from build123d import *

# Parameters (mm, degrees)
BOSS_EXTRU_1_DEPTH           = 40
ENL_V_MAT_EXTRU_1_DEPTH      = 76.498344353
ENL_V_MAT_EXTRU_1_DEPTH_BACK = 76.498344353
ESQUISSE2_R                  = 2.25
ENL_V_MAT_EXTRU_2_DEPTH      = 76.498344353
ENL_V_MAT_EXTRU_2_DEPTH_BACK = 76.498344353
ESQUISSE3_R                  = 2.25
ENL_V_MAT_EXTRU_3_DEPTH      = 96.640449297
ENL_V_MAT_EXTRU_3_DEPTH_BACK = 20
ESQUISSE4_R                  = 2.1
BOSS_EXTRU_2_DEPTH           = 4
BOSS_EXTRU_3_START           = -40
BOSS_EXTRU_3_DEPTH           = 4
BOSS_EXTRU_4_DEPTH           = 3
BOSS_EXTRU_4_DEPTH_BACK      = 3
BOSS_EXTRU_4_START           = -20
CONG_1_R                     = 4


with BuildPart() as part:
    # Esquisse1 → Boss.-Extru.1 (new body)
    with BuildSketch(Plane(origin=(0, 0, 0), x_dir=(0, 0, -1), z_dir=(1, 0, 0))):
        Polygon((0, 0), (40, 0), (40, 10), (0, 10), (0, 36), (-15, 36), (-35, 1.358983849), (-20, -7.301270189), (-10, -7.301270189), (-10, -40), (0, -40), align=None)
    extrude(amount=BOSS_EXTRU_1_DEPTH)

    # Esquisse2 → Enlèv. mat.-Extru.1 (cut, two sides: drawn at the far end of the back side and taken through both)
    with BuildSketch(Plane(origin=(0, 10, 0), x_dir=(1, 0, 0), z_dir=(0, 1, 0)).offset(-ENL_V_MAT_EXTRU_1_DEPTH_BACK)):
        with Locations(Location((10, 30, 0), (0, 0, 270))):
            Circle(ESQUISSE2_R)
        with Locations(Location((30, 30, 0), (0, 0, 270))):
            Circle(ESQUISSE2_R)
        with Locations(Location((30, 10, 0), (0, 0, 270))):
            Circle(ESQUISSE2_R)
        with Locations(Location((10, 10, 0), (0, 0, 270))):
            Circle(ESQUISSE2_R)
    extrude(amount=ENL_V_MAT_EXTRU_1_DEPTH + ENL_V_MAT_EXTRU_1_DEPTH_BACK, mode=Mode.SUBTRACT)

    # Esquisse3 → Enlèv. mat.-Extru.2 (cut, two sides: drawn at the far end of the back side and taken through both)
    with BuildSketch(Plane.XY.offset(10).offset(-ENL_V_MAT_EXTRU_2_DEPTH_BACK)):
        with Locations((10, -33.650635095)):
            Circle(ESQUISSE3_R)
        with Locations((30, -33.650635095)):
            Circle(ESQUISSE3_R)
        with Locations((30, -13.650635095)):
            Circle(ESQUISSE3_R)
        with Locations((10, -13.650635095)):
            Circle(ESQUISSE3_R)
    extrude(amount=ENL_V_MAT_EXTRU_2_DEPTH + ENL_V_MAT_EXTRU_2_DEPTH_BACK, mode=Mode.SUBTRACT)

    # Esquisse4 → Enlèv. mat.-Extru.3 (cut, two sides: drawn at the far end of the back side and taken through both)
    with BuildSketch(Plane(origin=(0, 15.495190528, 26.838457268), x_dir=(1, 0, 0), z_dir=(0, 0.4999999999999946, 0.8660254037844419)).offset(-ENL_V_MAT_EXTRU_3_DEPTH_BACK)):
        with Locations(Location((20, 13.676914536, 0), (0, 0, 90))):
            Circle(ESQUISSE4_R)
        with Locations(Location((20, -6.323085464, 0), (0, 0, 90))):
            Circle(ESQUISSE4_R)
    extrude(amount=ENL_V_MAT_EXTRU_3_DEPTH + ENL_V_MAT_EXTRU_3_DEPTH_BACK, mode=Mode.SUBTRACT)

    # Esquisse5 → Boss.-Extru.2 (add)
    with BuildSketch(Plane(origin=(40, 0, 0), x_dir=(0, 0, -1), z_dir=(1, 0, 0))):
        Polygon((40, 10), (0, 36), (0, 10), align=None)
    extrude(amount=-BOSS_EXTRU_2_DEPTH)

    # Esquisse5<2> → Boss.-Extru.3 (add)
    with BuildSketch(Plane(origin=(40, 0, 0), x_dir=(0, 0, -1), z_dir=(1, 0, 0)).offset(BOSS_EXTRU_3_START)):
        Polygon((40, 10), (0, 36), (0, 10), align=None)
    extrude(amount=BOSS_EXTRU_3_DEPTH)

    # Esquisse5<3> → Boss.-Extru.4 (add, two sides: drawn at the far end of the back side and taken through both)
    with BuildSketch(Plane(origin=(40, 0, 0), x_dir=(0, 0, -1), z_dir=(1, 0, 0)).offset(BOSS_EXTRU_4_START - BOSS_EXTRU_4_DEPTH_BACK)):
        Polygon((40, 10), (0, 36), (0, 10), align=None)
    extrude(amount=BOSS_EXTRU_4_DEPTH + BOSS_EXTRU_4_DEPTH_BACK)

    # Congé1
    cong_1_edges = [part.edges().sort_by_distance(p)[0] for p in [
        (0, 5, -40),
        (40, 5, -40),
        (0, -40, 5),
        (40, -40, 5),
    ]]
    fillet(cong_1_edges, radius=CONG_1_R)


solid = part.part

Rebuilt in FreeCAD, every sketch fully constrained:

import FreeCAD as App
import Part
import Sketcher
Q = App.Units.Quantity


def edges_at(feature, points):
    """Names of the edges that pass closest to the given points."""
    edges = feature.Shape.Edges
    near = lambda p: min(range(len(edges)), key=lambda i: edges[i].distToShape(Part.Vertex(*p))[0])
    return sorted({f"Edge{near(p) + 1}" for p in points})


def add_polygon(sketch, points):
    """Adds a closed chain of lines whose ends are joined by coincident constraints."""
    first, n = sketch.GeometryCount, len(points)
    for a, b in zip(points, points[1:] + points[:1]):
        sketch.addGeometry(Part.LineSegment(App.Vector(*a, 0), App.Vector(*b, 0)), False)
    for i in range(n):
        sketch.addConstraint(Sketcher.Constraint("Coincident", first + i, 2, first + (i + 1) % n, 1))

doc = App.newDocument("Part")
params = doc.addObject("Spreadsheet::Sheet", "Params")
for row, (alias, value) in enumerate([
    ("sketch1_width", "10 mm"),
    ("sketch1_width2", "26 mm"),
    ("sketch1_width3", "40 mm"),
    ("sketch1_height", "15 mm"),
    ("sketch1_length", "40 mm"),
    ("pad1_length", "40 mm"),
    ("sketch2_diameter", "4.5 mm"),
    ("sketch3_diameter", "4.5 mm"),
    ("sketch4_diameter", "4.2 mm"),
    ("pocket3_length", "96.640449 mm"),
    ("pocket3_length2", "20 mm"),
    ("sketch5_width", "26 mm"),
    ("sketch5_height", "40 mm"),
    ("pad2_length", "4 mm"),
    ("sketch6_width", "26 mm"),
    ("sketch6_height", "40 mm"),
    ("pad3_length", "4 mm"),
    ("sketch7_width", "26 mm"),
    ("sketch7_height", "40 mm"),
    ("pad4_length", "3 mm"),
    ("pad4_length2", "3 mm"),
    ("fillet_radius", "4 mm"),
], start=1):
    params.set(f"A{row}", alias)
    params.set(f"B{row}", "=" + value)
    params.setAlias(f"B{row}", alias)

body = doc.addObject("PartDesign::Body", "Body")

sketch1 = body.newObject("Sketcher::SketchObject", "Sketch")
sketch1.AttachmentSupport = (doc.getObject("YZ_Plane"), [""])
sketch1.MapMode = "FlatFace"
add_polygon(sketch1, [(0, 0), (0, -40), (10, -40), (10, 0), (36, 0), (36, 15), (1, 35), (-7, 20), (-7, 10), (-40, 10), (-40, 0)])
sketch1.addConstraint(Sketcher.Constraint("Vertical", 0))
sketch1.addConstraint(Sketcher.Constraint("Horizontal", 1))
sketch1.addConstraint(Sketcher.Constraint("Vertical", 2))
sketch1.addConstraint(Sketcher.Constraint("Horizontal", 3))
sketch1.addConstraint(Sketcher.Constraint("Vertical", 4))
sketch1.addConstraint(Sketcher.Constraint("Vertical", 7))
sketch1.addConstraint(Sketcher.Constraint("Horizontal", 8))
sketch1.addConstraint(Sketcher.Constraint("Vertical", 9))
sketch1.addConstraint(Sketcher.Constraint("Horizontal", 10))
sketch1.addConstraint(Sketcher.Constraint("Coincident", 10, 2, -1, 1))
sketch1.addConstraint(Sketcher.Constraint("PointOnObject", 2, 2, -1))
sketch1.addConstraint(Sketcher.Constraint("Perpendicular", 5, 6))
sketch1.addConstraint(Sketcher.Constraint("Equal", 10, 0))
sketch1.addConstraint(Sketcher.Constraint("Equal", 1, 7))
sketch1.addConstraint(Sketcher.Constraint("Equal", 7, 9))
sketch1.addConstraint(Sketcher.Constraint("DistanceX", 1, 1, 1, 2, Q("10 mm")))
sketch1.addConstraint(Sketcher.Constraint("DistanceX", 3, 1, 3, 2, Q("26 mm")))
sketch1.addConstraint(Sketcher.Constraint("DistanceX", 10, 1, 10, 2, Q("40 mm")))
sketch1.addConstraint(Sketcher.Constraint("DistanceY", 4, 1, 4, 2, Q("15 mm")))
sketch1.addConstraint(Sketcher.Constraint("Angle", 5, Q("150 deg")))
sketch1.addConstraint(Sketcher.Constraint("Distance", 5, Q("40 mm")))
sketch1.setExpression("Constraints[26]", "Params.sketch1_width")
sketch1.setExpression("Constraints[27]", "Params.sketch1_width2")
sketch1.setExpression("Constraints[28]", "Params.sketch1_width3")
sketch1.setExpression("Constraints[29]", "Params.sketch1_height")
sketch1.setExpression("Constraints[31]", "Params.sketch1_length")
pad1 = body.newObject("PartDesign::Pad", "Pad")
pad1.Profile = sketch1
pad1.setExpression("Length", "Params.pad1_length")

sketch2 = body.newObject("Sketcher::SketchObject", "Sketch001")
sketch2.AttachmentSupport = (doc.getObject("XZ_Plane"), [""])
sketch2.MapMode = "FlatFace"
sketch2.AttachmentOffset = App.Placement(App.Vector(0, 0, -10), App.Rotation())
sketch2.addGeometry(Part.Circle(App.Vector(10, -30, 0), App.Vector(0, 0, 1), 2.2), False)
sketch2.addGeometry(Part.Circle(App.Vector(30, -30, 0), App.Vector(0, 0, 1), 2.2), False)
sketch2.addGeometry(Part.Circle(App.Vector(30, -10, 0), App.Vector(0, 0, 1), 2.2), False)
sketch2.addGeometry(Part.Circle(App.Vector(10, -10, 0), App.Vector(0, 0, 1), 2.2), False)
sketch2.addConstraint(Sketcher.Constraint("Equal", 0, 1))
sketch2.addConstraint(Sketcher.Constraint("Equal", 1, 2))
sketch2.addConstraint(Sketcher.Constraint("Equal", 2, 3))
sketch2.addConstraint(Sketcher.Constraint("Horizontal", 0, 3, 1, 3))
sketch2.addConstraint(Sketcher.Constraint("Horizontal", 2, 3, 3, 3))
sketch2.addConstraint(Sketcher.Constraint("Vertical", 1, 3, 2, 3))
sketch2.addConstraint(Sketcher.Constraint("Vertical", 0, 3, 3, 3))
sketch2.addConstraint(Sketcher.Constraint("Diameter", 0, Q("4.5 mm")))
sketch2.addConstraint(Sketcher.Constraint("DistanceX", -1, 1, 0, 3, Q("10 mm")))
sketch2.addConstraint(Sketcher.Constraint("DistanceY", 0, 3, -1, 1, Q("30 mm")))
sketch2.addConstraint(Sketcher.Constraint("DistanceX", -1, 1, 1, 3, Q("30 mm")))
sketch2.addConstraint(Sketcher.Constraint("DistanceY", 2, 3, -1, 1, Q("10 mm")))
sketch2.setExpression("Constraints[7]", "Params.sketch2_diameter")
pocket1 = body.newObject("PartDesign::Pocket", "Pocket")
pocket1.Profile = sketch2
pocket1.Type = "ThroughAll"
pocket1.Midplane = True

sketch3 = body.newObject("Sketcher::SketchObject", "Sketch002")
sketch3.AttachmentSupport = (doc.getObject("XY_Plane"), [""])
sketch3.MapMode = "FlatFace"
sketch3.AttachmentOffset = App.Placement(App.Vector(0, 0, 10), App.Rotation())
sketch3.addGeometry(Part.Circle(App.Vector(10, -33.7, 0), App.Vector(0, 0, 1), 2.2), False)
sketch3.addGeometry(Part.Circle(App.Vector(30, -33.7, 0), App.Vector(0, 0, 1), 2.2), False)
sketch3.addGeometry(Part.Circle(App.Vector(30, -13.7, 0), App.Vector(0, 0, 1), 2.2), False)
sketch3.addGeometry(Part.Circle(App.Vector(10, -13.7, 0), App.Vector(0, 0, 1), 2.2), False)
sketch3.addConstraint(Sketcher.Constraint("Equal", 0, 1))
sketch3.addConstraint(Sketcher.Constraint("Equal", 1, 2))
sketch3.addConstraint(Sketcher.Constraint("Equal", 2, 3))
sketch3.addConstraint(Sketcher.Constraint("Horizontal", 0, 3, 1, 3))
sketch3.addConstraint(Sketcher.Constraint("Horizontal", 2, 3, 3, 3))
sketch3.addConstraint(Sketcher.Constraint("Vertical", 1, 3, 2, 3))
sketch3.addConstraint(Sketcher.Constraint("Vertical", 0, 3, 3, 3))
sketch3.addConstraint(Sketcher.Constraint("Diameter", 0, Q("4.5 mm")))
sketch3.addConstraint(Sketcher.Constraint("DistanceX", -1, 1, 0, 3, Q("10 mm")))
sketch3.addConstraint(Sketcher.Constraint("DistanceX", -1, 1, 1, 3, Q("30 mm")))
sketch3.addConstraint(Sketcher.Constraint("DistanceY", 1, 3, 2, 3, Q("20 mm")))
sketch3.addConstraint(Sketcher.Constraint("DistanceY", 0, 3, -1, 1, Q("33.650635 mm")))
sketch3.setExpression("Constraints[7]", "Params.sketch3_diameter")
pocket2 = body.newObject("PartDesign::Pocket", "Pocket001")
pocket2.Profile = sketch3
pocket2.Type = "ThroughAll"
pocket2.Midplane = True

sketch4 = body.newObject("Sketcher::SketchObject", "Sketch003")
sketch4.Placement = App.Placement(App.Vector(0, 15.495191, 26.838457), App.Rotation(App.Vector(1, 0, 0), App.Vector(0, 0.866025404, -0.5), App.Vector(0, 0.5, 0.866025404), "ZXY"))
sketch4.addGeometry(Part.Circle(App.Vector(20, 13.7, 0), App.Vector(0, 0, 1), 2.1), False)
sketch4.addGeometry(Part.Circle(App.Vector(20, -6.3, 0), App.Vector(0, 0, 1), 2.1), False)
sketch4.addConstraint(Sketcher.Constraint("Equal", 0, 1))
sketch4.addConstraint(Sketcher.Constraint("Vertical", 0, 3, 1, 3))
sketch4.addConstraint(Sketcher.Constraint("Diameter", 0, Q("4.2 mm")))
sketch4.addConstraint(Sketcher.Constraint("DistanceX", -1, 1, 0, 3, Q("20 mm")))
sketch4.addConstraint(Sketcher.Constraint("DistanceY", 1, 3, 0, 3, Q("20 mm")))
sketch4.addConstraint(Sketcher.Constraint("DistanceY", -1, 1, 0, 3, Q("13.676915 mm")))
sketch4.setExpression("Constraints[2]", "Params.sketch4_diameter")
pocket3 = body.newObject("PartDesign::Pocket", "Pocket002")
pocket3.Profile = sketch4
pocket3.Type = "TwoLengths"
pocket3.setExpression("Length", "Params.pocket3_length")
pocket3.setExpression("Length2", "Params.pocket3_length2")
pocket3.Reversed = True

sketch5 = body.newObject("Sketcher::SketchObject", "Sketch004")
sketch5.AttachmentSupport = (doc.getObject("YZ_Plane"), [""])
sketch5.MapMode = "FlatFace"
sketch5.AttachmentOffset = App.Placement(App.Vector(0, 0, 40), App.Rotation())
add_polygon(sketch5, [(10, -40), (36, 0), (10, 0)])
sketch5.addConstraint(Sketcher.Constraint("Horizontal", 1))
sketch5.addConstraint(Sketcher.Constraint("Vertical", 2))
sketch5.addConstraint(Sketcher.Constraint("PointOnObject", 0, 2, -1))
sketch5.addConstraint(Sketcher.Constraint("DistanceX", 1, 2, 1, 1, Q("26 mm")))
sketch5.addConstraint(Sketcher.Constraint("DistanceY", 2, 2, 2, 1, Q("40 mm")))
sketch5.addConstraint(Sketcher.Constraint("DistanceX", -1, 1, 0, 2, Q("36 mm")))
sketch5.setExpression("Constraints[6]", "Params.sketch5_width")
sketch5.setExpression("Constraints[7]", "Params.sketch5_height")
pad2 = body.newObject("PartDesign::Pad", "Pad001")
pad2.Profile = sketch5
pad2.setExpression("Length", "Params.pad2_length")
pad2.Reversed = True

sketch6 = body.newObject("Sketcher::SketchObject", "Sketch005")
sketch6.AttachmentSupport = (doc.getObject("YZ_Plane"), [""])
sketch6.MapMode = "FlatFace"
add_polygon(sketch6, [(10, -40), (36, 0), (10, 0)])
sketch6.addConstraint(Sketcher.Constraint("Horizontal", 1))
sketch6.addConstraint(Sketcher.Constraint("Vertical", 2))
sketch6.addConstraint(Sketcher.Constraint("PointOnObject", 0, 2, -1))
sketch6.addConstraint(Sketcher.Constraint("DistanceX", 1, 2, 1, 1, Q("26 mm")))
sketch6.addConstraint(Sketcher.Constraint("DistanceY", 2, 2, 2, 1, Q("40 mm")))
sketch6.addConstraint(Sketcher.Constraint("DistanceX", -1, 1, 0, 2, Q("36 mm")))
sketch6.setExpression("Constraints[6]", "Params.sketch6_width")
sketch6.setExpression("Constraints[7]", "Params.sketch6_height")
pad3 = body.newObject("PartDesign::Pad", "Pad002")
pad3.Profile = sketch6
pad3.setExpression("Length", "Params.pad3_length")

sketch7 = body.newObject("Sketcher::SketchObject", "Sketch006")
sketch7.AttachmentSupport = (doc.getObject("YZ_Plane"), [""])
sketch7.MapMode = "FlatFace"
sketch7.AttachmentOffset = App.Placement(App.Vector(0, 0, 20), App.Rotation())
add_polygon(sketch7, [(10, -40), (36, 0), (10, 0)])
sketch7.addConstraint(Sketcher.Constraint("Horizontal", 1))
sketch7.addConstraint(Sketcher.Constraint("Vertical", 2))
sketch7.addConstraint(Sketcher.Constraint("PointOnObject", 0, 2, -1))
sketch7.addConstraint(Sketcher.Constraint("DistanceX", 1, 2, 1, 1, Q("26 mm")))
sketch7.addConstraint(Sketcher.Constraint("DistanceY", 2, 2, 2, 1, Q("40 mm")))
sketch7.addConstraint(Sketcher.Constraint("DistanceX", -1, 1, 0, 2, Q("36 mm")))
sketch7.setExpression("Constraints[6]", "Params.sketch7_width")
sketch7.setExpression("Constraints[7]", "Params.sketch7_height")
pad4 = body.newObject("PartDesign::Pad", "Pad003")
pad4.Profile = sketch7
pad4.Type = "TwoLengths"
pad4.setExpression("Length", "Params.pad4_length")
pad4.setExpression("Length2", "Params.pad4_length2")
doc.recompute()

fillet = body.newObject("PartDesign::Fillet", "Fillet")
fillet.Base = (pad4, edges_at(pad4, [
    (0, 5, -40),
    (40, 5, -40),
    (0, -40, 5),
    (40, -40, 5),
]))
fillet.setExpression("Radius", "Params.fillet_radius")

doc.recompute()
